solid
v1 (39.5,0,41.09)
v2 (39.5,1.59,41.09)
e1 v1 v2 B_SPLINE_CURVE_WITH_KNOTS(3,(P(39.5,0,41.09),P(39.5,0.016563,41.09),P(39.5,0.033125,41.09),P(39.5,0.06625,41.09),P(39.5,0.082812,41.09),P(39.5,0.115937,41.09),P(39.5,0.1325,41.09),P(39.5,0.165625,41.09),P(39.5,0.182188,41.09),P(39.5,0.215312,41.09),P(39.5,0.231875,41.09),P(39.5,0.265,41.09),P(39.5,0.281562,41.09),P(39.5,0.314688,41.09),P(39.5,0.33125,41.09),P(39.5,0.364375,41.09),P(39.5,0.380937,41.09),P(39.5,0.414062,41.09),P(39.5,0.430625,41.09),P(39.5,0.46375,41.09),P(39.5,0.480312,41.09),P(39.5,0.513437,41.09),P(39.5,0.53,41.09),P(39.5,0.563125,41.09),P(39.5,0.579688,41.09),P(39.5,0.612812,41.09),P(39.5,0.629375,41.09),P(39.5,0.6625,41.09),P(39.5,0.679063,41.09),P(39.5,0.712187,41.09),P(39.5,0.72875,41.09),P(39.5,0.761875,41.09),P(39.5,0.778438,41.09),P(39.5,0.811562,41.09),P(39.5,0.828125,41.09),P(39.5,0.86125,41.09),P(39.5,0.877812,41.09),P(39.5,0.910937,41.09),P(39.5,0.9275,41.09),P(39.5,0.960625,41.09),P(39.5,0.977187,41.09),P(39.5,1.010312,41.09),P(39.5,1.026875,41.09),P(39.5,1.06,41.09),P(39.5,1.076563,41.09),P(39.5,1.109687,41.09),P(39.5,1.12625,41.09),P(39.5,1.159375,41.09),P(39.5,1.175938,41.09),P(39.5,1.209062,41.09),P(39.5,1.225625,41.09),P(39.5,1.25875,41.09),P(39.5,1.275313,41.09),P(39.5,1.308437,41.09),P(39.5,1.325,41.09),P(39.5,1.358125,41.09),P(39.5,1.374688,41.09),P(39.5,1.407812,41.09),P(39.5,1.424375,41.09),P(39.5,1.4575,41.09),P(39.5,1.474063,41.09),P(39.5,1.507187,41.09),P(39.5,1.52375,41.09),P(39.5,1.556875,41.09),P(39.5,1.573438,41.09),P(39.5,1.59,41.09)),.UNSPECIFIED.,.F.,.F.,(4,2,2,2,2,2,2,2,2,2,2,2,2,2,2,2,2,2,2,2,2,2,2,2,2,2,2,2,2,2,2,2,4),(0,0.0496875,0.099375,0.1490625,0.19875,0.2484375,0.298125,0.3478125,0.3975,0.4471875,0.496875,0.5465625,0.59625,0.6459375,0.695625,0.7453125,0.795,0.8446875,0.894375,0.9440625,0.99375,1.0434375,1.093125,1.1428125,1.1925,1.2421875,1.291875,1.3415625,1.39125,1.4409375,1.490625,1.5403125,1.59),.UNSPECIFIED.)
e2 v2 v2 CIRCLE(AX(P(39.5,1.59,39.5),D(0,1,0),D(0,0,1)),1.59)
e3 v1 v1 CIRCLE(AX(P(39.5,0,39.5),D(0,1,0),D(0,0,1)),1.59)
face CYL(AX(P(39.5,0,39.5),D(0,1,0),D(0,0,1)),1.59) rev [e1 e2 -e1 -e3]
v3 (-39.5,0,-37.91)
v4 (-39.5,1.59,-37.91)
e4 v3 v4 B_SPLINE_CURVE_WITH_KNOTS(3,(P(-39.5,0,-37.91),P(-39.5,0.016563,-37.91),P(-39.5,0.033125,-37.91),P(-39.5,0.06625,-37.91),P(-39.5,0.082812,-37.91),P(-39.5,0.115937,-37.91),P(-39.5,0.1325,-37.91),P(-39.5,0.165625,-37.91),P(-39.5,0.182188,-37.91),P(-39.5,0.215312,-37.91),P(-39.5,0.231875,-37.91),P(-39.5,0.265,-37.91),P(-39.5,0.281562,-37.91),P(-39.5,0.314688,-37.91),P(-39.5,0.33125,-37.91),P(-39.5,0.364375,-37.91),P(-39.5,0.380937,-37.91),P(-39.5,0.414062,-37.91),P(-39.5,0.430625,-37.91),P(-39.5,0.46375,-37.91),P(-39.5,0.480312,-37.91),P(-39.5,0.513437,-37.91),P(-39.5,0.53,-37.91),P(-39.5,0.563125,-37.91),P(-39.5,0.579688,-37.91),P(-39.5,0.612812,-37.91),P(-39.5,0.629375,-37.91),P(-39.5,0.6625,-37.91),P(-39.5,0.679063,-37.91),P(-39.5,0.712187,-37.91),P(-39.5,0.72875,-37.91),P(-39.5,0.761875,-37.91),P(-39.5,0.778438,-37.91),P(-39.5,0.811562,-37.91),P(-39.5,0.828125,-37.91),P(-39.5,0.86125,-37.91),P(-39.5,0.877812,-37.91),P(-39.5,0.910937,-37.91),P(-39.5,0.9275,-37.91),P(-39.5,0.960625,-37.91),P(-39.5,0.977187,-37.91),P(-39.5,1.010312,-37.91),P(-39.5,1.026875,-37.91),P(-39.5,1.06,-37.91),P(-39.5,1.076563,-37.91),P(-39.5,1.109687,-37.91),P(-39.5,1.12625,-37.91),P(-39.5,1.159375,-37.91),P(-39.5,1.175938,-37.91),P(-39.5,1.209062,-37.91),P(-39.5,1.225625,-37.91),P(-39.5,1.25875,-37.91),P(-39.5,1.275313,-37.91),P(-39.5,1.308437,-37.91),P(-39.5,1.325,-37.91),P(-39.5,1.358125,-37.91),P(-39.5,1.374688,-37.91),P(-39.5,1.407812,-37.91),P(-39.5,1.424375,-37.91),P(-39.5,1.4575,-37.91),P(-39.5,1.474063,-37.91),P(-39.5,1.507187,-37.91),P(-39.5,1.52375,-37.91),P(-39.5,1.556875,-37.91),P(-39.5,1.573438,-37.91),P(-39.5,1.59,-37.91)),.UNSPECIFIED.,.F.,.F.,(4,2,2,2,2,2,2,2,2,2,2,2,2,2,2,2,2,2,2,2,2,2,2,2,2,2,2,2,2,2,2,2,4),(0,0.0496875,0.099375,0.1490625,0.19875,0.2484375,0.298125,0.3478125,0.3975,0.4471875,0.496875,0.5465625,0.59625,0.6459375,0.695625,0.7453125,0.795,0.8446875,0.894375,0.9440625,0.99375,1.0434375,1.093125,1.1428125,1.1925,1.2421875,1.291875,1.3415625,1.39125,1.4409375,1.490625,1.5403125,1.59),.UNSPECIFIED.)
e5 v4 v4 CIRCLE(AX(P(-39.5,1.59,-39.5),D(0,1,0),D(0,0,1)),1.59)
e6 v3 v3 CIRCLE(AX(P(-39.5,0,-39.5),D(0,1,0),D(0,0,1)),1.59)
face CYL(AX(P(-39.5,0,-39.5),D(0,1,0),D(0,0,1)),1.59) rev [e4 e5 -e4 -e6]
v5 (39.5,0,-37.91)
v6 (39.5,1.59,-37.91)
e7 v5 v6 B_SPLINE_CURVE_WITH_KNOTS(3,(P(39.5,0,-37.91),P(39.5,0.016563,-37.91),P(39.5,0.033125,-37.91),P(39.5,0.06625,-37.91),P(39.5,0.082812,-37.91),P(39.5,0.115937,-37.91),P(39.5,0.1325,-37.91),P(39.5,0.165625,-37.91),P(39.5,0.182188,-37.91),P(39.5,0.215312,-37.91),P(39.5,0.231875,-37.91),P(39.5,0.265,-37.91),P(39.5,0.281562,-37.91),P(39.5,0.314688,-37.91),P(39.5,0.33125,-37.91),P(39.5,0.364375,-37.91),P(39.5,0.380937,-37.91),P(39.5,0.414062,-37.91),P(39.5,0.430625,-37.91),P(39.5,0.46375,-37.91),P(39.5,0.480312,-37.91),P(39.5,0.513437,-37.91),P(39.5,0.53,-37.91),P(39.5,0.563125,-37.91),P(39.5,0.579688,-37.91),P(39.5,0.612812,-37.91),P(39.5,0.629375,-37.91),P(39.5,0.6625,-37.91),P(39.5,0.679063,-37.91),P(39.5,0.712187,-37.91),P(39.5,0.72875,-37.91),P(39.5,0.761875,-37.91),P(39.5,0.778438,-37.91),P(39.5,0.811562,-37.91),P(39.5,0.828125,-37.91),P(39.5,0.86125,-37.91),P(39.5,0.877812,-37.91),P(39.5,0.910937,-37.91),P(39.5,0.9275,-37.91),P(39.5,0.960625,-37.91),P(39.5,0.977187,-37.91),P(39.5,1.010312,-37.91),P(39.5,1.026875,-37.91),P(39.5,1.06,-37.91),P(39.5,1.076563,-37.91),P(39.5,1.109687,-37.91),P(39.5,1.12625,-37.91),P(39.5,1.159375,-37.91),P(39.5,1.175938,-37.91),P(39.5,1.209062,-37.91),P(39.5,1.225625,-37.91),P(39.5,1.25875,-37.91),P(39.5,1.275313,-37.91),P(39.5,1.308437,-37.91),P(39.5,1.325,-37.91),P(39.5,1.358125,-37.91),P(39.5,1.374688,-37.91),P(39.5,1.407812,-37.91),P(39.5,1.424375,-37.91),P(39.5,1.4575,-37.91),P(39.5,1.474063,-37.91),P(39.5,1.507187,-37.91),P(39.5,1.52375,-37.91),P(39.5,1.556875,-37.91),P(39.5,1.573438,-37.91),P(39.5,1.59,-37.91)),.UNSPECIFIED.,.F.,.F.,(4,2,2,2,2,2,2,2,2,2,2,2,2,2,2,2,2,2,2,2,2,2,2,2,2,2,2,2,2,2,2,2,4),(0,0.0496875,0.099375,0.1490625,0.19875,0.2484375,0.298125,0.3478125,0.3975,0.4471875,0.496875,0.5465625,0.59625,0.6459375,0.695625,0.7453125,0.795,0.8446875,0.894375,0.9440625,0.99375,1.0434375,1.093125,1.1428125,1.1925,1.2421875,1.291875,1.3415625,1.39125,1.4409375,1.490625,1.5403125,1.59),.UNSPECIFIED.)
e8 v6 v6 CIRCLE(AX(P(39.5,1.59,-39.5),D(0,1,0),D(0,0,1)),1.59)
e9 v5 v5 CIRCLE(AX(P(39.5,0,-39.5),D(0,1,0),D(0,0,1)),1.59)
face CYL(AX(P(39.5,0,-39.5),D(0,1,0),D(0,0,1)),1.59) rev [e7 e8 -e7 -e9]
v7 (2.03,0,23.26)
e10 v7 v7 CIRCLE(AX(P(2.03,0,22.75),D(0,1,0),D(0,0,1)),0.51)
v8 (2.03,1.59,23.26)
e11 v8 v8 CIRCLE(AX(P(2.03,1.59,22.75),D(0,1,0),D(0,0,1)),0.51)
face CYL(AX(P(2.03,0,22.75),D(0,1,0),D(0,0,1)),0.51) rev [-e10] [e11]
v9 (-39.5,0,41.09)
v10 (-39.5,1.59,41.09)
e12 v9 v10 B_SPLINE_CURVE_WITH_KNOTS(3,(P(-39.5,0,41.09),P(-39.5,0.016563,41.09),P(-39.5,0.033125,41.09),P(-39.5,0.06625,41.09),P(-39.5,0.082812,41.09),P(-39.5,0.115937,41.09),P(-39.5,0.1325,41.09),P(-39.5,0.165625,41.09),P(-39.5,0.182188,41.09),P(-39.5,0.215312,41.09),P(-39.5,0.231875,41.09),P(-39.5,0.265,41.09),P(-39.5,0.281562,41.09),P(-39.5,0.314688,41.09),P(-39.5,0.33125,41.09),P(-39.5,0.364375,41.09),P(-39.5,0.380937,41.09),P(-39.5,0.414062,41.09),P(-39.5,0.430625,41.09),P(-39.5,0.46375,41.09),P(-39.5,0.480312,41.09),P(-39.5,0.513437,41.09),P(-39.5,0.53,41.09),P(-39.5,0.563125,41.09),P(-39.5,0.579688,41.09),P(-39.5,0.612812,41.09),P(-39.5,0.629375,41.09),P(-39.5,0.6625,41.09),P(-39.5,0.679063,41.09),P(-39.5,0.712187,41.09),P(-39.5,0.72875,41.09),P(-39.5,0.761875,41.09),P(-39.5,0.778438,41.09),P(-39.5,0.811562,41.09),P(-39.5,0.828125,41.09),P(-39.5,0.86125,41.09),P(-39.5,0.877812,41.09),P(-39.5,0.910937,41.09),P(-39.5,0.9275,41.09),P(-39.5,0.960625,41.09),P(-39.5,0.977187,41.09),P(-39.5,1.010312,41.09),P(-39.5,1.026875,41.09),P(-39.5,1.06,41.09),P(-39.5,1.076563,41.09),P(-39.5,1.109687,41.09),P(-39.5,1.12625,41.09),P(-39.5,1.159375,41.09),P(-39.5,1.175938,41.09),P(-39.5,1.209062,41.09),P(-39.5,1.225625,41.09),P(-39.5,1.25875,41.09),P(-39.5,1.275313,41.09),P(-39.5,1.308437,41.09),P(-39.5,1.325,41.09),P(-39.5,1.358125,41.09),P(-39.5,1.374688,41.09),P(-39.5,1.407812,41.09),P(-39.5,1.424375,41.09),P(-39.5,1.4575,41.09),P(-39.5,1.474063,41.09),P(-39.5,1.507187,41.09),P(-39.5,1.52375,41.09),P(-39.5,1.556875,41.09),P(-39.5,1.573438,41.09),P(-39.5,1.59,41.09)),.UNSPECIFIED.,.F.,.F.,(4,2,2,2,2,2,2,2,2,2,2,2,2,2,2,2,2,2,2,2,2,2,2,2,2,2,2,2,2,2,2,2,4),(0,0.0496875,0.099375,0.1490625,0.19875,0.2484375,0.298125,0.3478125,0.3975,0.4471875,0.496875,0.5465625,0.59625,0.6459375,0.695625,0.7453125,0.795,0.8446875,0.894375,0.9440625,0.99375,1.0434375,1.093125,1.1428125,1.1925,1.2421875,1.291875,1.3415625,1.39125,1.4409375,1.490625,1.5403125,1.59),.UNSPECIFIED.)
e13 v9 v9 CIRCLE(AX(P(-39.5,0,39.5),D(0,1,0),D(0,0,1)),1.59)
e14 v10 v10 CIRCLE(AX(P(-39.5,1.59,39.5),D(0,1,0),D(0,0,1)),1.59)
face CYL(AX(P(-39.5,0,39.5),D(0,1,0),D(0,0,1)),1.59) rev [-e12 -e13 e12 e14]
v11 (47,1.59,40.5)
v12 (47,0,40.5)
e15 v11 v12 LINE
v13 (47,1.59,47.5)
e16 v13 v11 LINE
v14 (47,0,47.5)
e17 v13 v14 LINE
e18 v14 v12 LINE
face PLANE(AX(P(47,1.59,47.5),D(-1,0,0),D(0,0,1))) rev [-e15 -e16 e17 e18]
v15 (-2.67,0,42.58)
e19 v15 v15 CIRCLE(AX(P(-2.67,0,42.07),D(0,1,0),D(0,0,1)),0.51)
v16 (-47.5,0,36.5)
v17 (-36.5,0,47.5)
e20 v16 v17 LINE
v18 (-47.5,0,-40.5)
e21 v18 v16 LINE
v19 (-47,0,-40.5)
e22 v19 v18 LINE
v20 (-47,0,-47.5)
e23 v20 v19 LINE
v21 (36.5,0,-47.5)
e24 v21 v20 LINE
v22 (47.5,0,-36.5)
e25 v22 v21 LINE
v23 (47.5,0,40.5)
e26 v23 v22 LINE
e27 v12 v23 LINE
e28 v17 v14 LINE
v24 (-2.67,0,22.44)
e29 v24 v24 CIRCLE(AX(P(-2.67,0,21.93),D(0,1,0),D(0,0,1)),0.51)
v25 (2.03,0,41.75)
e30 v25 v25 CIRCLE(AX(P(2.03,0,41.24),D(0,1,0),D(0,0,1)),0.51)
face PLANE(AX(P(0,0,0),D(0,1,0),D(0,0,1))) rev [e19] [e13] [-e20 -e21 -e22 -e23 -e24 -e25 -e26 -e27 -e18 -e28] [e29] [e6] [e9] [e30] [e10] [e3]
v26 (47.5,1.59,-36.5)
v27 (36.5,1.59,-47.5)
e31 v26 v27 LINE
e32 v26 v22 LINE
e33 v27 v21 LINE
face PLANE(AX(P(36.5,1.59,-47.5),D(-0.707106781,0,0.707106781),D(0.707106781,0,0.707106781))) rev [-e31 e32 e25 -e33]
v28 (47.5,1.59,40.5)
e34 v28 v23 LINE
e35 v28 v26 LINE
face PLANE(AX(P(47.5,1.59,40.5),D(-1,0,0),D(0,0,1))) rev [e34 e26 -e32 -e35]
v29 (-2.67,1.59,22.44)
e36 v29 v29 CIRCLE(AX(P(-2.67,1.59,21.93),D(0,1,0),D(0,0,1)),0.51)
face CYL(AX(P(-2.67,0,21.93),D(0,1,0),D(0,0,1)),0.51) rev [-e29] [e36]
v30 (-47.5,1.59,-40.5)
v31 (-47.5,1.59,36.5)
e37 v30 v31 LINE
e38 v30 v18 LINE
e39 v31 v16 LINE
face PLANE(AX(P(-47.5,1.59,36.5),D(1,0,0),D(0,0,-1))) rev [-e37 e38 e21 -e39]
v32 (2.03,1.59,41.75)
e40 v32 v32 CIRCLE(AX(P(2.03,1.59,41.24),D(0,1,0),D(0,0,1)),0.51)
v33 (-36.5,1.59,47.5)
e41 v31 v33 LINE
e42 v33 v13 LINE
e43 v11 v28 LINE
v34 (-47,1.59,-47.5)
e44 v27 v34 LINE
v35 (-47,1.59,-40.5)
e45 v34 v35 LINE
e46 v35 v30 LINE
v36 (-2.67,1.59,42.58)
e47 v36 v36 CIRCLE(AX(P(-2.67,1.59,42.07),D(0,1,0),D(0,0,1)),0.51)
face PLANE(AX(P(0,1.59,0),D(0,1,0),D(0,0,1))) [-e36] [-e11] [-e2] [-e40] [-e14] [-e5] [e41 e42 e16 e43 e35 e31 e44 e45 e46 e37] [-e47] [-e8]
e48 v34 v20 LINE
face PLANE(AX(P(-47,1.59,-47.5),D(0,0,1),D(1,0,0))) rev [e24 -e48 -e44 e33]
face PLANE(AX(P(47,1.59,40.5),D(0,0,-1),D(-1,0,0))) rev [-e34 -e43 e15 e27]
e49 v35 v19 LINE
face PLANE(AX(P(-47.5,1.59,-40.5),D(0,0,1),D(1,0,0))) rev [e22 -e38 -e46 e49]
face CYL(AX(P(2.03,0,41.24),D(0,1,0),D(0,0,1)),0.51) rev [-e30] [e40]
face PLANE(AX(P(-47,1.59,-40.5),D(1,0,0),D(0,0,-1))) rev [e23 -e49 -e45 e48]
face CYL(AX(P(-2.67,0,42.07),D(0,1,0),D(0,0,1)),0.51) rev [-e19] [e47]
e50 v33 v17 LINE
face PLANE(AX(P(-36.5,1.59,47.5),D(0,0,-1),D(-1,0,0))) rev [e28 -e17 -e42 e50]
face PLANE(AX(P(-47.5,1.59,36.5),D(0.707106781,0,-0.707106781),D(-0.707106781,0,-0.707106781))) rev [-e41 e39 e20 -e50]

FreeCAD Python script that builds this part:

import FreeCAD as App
import Part
import Sketcher
from FreeCAD import Vector
Q = App.Units.Quantity

doc = App.newDocument("Part")
params = doc.addObject("Spreadsheet::Sheet", "Params")
for row, (alias, value) in enumerate([
    ("sketch1_height", "7 mm"),
    ("sketch1_height2", "77 mm"),
    ("sketch1_width", "83.5 mm"),
    ("sketch1_width2", "0.5 mm"),
    ("pad1_length", "1.59 mm"),
    ("sketch2_diameter", "3.18 mm"),
    ("sketch2_diameter2", "1.02 mm"),
], start=1):
    params.set(f"A{row}", alias)
    params.set(f"B{row}", "=" + value)
    params.setAlias(f"B{row}", alias)

body = doc.addObject("PartDesign::Body", "Body")

# Sketch on XZ plane
sketch1 = body.newObject("Sketcher::SketchObject", "Sketch")
sketch1.AttachmentSupport = (doc.getObject("XZ_Plane"), [""])
sketch1.MapMode = "FlatFace"
sketch1.addGeometry([
    Part.LineSegment(Vector(-47.5, 36.5, 0), Vector(-36.5, 47.5, 0)),  # 0
    Part.LineSegment(Vector(-36.5, 47.5, 0), Vector(47, 47.5, 0)),  # 1
    Part.LineSegment(Vector(47, 47.5, 0), Vector(47, 40.5, 0)),  # 2
    Part.LineSegment(Vector(47, 40.5, 0), Vector(47.5, 40.5, 0)),  # 3
    Part.LineSegment(Vector(47.5, 40.5, 0), Vector(47.5, -36.5, 0)),  # 4
    Part.LineSegment(Vector(47.5, -36.5, 0), Vector(36.5, -47.5, 0)),  # 5
    Part.LineSegment(Vector(36.5, -47.5, 0), Vector(-47, -47.5, 0)),  # 6
    Part.LineSegment(Vector(-47, -47.5, 0), Vector(-47, -40.5, 0)),  # 7
    Part.LineSegment(Vector(-47, -40.5, 0), Vector(-47.5, -40.5, 0)),  # 8
    Part.LineSegment(Vector(-47.5, -40.5, 0), Vector(-47.5, 36.5, 0)),  # 9
], False)
sketch1.addConstraint([
    Sketcher.Constraint("Coincident", 0, 2, 1, 1),
    Sketcher.Constraint("Coincident", 1, 2, 2, 1),
    Sketcher.Constraint("Coincident", 2, 2, 3, 1),
    Sketcher.Constraint("Coincident", 3, 2, 4, 1),
    Sketcher.Constraint("Coincident", 4, 2, 5, 1),
    Sketcher.Constraint("Coincident", 5, 2, 6, 1),
    Sketcher.Constraint("Coincident", 6, 2, 7, 1),
    Sketcher.Constraint("Coincident", 7, 2, 8, 1),
    Sketcher.Constraint("Coincident", 8, 2, 9, 1),
    Sketcher.Constraint("Coincident", 9, 2, 0, 1),
    Sketcher.Constraint("Horizontal", 1),
    Sketcher.Constraint("Vertical", 2),
    Sketcher.Constraint("Horizontal", 3),
    Sketcher.Constraint("Vertical", 4),
    Sketcher.Constraint("Horizontal", 6),
    Sketcher.Constraint("Vertical", 7),
    Sketcher.Constraint("Horizontal", 8),
    Sketcher.Constraint("Vertical", 9),
    Sketcher.Constraint("Symmetric", 0, 2, 5, 2, -1, 1),
    Sketcher.Constraint("Symmetric", 2, 2, 7, 2, -1, 1),
    Sketcher.Constraint("Symmetric", 4, 2, 9, 2, -1, 1),
    Sketcher.Constraint("DistanceY", 2, 2, 2, 1, 7.0),
    Sketcher.Constraint("DistanceY", 4, 2, 4, 1, 77.0),
    Sketcher.Constraint("Angle", 0, Q("45 deg")),
    Sketcher.Constraint("DistanceX", 1, 1, 1, 2, 83.5),
    Sketcher.Constraint("DistanceX", 3, 1, 3, 2, 0.5),
    Sketcher.Constraint("DistanceX", -1, 1, 1, 2, 47.0),
])
sketch1.setExpression("Constraints[21]", "Params.sketch1_height")
sketch1.setExpression("Constraints[22]", "Params.sketch1_height2")
sketch1.setExpression("Constraints[24]", "Params.sketch1_width")
sketch1.setExpression("Constraints[25]", "Params.sketch1_width2")
pad1 = body.newObject("PartDesign::Pad", "Pad")
pad1.Profile = sketch1
pad1.setExpression("Length", "Params.pad1_length")
pad1.Reversed = True

# Sketch on XZ plane
sketch2 = body.newObject("Sketcher::SketchObject", "Sketch001")
sketch2.AttachmentSupport = (doc.getObject("XZ_Plane"), [""])
sketch2.MapMode = "FlatFace"
sketch2.AttachmentOffset = App.Placement(Vector(0, 0, -1.59), App.Rotation())
sketch2.addGeometry([
    Part.Circle(Vector(-39.5, 39.5, 0), Vector(0, 0, 1), 1.6),  # 0
    Part.Circle(Vector(-39.5, -39.5, 0), Vector(0, 0, 1), 1.6),  # 1
    Part.Circle(Vector(39.5, -39.5, 0), Vector(0, 0, 1), 1.6),  # 2
    Part.Circle(Vector(39.5, 39.5, 0), Vector(0, 0, 1), 1.6),  # 3
    Part.Circle(Vector(-2.7, 21.9, 0), Vector(0, 0, 1), 0.5),  # 4
    Part.Circle(Vector(2, 22.8, 0), Vector(0, 0, 1), 0.5),  # 5
    Part.Circle(Vector(-2.7, 42.1, 0), Vector(0, 0, 1), 0.5),  # 6
    Part.Circle(Vector(2, 41.2, 0), Vector(0, 0, 1), 0.5),  # 7
], False)
sketch2.addConstraint([
    Sketcher.Constraint("Equal", 0, 1),
    Sketcher.Constraint("Equal", 1, 2),
    Sketcher.Constraint("Equal", 2, 3),
    Sketcher.Constraint("Equal", 4, 5),
    Sketcher.Constraint("Equal", 5, 6),
    Sketcher.Constraint("Equal", 6, 7),
    Sketcher.Constraint("Symmetric", 0, 3, 2, 3, -1, 1),
    Sketcher.Constraint("Symmetric", 1, 3, 3, 3, -1, 1),
    Sketcher.Constraint("Symmetric", 1, 3, 2, 3, -2),
    Sketcher.Constraint("Vertical", 4, 3, 6, 3),
    Sketcher.Constraint("Vertical", 5, 3, 7, 3),
    Sketcher.Constraint("Diameter", 0, 3.18),
    Sketcher.Constraint("Diameter", 4, 1.02),
    Sketcher.Constraint("DistanceY", 1, 3, 0, 3, 79.0),
    Sketcher.Constraint("DistanceX", 1, 3, 2, 3, 79.0),
    Sketcher.Constraint("DistanceX", 4, 3, 5, 3, 4.7),
    Sketcher.Constraint("DistanceX", 4, 3, -1, 1, 2.67),
    Sketcher.Constraint("DistanceY", -1, 1, 4, 3, 21.93),
    Sketcher.Constraint("DistanceY", -1, 1, 5, 3, 22.75),
    Sketcher.Constraint("DistanceY", -1, 1, 6, 3, 42.07),
    Sketcher.Constraint("DistanceY", -1, 1, 7, 3, 41.24),
])
sketch2.setExpression("Constraints[11]", "Params.sketch2_diameter")
sketch2.setExpression("Constraints[12]", "Params.sketch2_diameter2")
pocket1 = body.newObject("PartDesign::Pocket", "Pocket")
pocket1.Profile = sketch2
pocket1.Type = "ThroughAll"
pocket1.Reversed = True

doc.recompute()
